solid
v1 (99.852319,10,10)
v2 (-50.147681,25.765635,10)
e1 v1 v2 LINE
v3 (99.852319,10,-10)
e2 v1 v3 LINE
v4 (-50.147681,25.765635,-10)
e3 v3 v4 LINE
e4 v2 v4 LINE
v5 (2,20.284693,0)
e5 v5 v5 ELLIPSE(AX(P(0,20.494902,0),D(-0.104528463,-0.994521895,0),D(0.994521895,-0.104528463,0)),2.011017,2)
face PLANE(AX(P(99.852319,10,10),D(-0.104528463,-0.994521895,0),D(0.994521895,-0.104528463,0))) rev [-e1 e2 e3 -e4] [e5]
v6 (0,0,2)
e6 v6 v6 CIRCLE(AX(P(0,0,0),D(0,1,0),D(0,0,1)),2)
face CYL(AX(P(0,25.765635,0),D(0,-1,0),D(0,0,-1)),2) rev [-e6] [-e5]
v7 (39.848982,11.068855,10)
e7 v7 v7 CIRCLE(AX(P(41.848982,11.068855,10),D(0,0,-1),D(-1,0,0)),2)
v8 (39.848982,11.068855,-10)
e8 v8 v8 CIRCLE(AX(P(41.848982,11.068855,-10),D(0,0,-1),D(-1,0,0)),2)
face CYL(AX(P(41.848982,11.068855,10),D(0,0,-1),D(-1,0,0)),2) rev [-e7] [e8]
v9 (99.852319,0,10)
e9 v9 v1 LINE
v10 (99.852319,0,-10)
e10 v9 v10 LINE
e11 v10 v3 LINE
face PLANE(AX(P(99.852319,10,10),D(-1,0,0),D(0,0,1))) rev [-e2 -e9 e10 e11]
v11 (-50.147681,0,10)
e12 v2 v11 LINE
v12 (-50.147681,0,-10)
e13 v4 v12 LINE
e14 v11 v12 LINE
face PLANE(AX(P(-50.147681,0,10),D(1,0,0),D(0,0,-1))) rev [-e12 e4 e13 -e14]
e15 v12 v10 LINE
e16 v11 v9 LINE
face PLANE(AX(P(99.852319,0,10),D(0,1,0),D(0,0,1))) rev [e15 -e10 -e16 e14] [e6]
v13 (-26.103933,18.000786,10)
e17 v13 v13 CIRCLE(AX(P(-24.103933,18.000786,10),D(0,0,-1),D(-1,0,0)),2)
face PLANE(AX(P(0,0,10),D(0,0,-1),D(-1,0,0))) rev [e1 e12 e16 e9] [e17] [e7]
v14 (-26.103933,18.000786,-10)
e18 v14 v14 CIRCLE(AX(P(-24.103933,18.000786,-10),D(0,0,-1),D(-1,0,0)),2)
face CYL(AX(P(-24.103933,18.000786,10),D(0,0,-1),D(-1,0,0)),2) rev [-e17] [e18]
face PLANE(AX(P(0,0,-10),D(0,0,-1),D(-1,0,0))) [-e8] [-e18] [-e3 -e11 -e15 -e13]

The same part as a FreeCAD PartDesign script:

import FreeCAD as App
import Part
import Sketcher
Q = App.Units.Quantity


def add_polygon(sketch, points):
    """Adds a closed chain of lines whose ends are joined by coincident constraints."""
    first, n = sketch.GeometryCount, len(points)
    for a, b in zip(points, points[1:] + points[:1]):
        sketch.addGeometry(Part.LineSegment(App.Vector(*a, 0), App.Vector(*b, 0)), False)
    for i in range(n):
        sketch.addConstraint(Sketcher.Constraint("Coincident", first + i, 2, first + (i + 1) % n, 1))

doc = App.newDocument("Part")
params = doc.addObject("Spreadsheet::Sheet", "Params")
for row, (alias, value) in enumerate([
    ("sketch1_width", "150 mm"),
    ("sketch1_height", "10 mm"),
    ("pad1_length", "20 mm"),
    ("sketch2_diameter", "4 mm"),
    ("sketch3_diameter", "4 mm"),
], start=1):
    params.set(f"A{row}", alias)
    params.set(f"B{row}", "=" + value)
    params.setAlias(f"B{row}", alias)

body = doc.addObject("PartDesign::Body", "Body")

# Sketch on XY plane
sketch1 = body.newObject("Sketcher::SketchObject", "Sketch")
sketch1.AttachmentSupport = (doc.getObject("XY_Plane"), [""])
sketch1.MapMode = "FlatFace"
add_polygon(sketch1, [(100, 10), (-50, 26), (-50, 0), (100, 0)])  # lines 0-3
sketch1.addConstraint([
    Sketcher.Constraint("Vertical", 1),
    Sketcher.Constraint("Horizontal", 2),
    Sketcher.Constraint("Vertical", 3),
    Sketcher.Constraint("PointOnObject", 1, 2, -1),
    Sketcher.Constraint("DistanceX", 2, 1, 2, 2, 150.0),
    Sketcher.Constraint("DistanceY", 3, 1, 3, 2, 10.0),
    Sketcher.Constraint("Angle", 0, Q("174 deg")),
    Sketcher.Constraint("DistanceX", 0, 2, -1, 1, 50.147681),
])
sketch1.setExpression("Constraints[8]", "Params.sketch1_width")
sketch1.setExpression("Constraints[9]", "Params.sketch1_height")
pad1 = body.newObject("PartDesign::Pad", "Pad")
pad1.Profile = sketch1
pad1.setExpression("Length", "Params.pad1_length")
pad1.Midplane = True

# Sketch on XZ plane
sketch2 = body.newObject("Sketcher::SketchObject", "Sketch001")
sketch2.AttachmentSupport = (doc.getObject("XZ_Plane"), [""])
sketch2.MapMode = "FlatFace"
sketch2.addGeometry(Part.Circle(App.Vector(0, 0, 0), App.Vector(0, 0, 1), 2), False)
sketch2.addConstraint([
    Sketcher.Constraint("Coincident", 0, 3, -1, 1),
    Sketcher.Constraint("Diameter", 0, 4.0),
])
sketch2.setExpression("Constraints[1]", "Params.sketch2_diameter")
pocket1 = body.newObject("PartDesign::Pocket", "Pocket")
pocket1.Profile = sketch2
pocket1.Type = "ThroughAll"
pocket1.Midplane = True

# Sketch on XY plane
sketch3 = body.newObject("Sketcher::SketchObject", "Sketch002")
sketch3.AttachmentSupport = (doc.getObject("XY_Plane"), [""])
sketch3.MapMode = "FlatFace"
sketch3.AttachmentOffset = App.Placement(App.Vector(0, 0, -10), App.Rotation())
sketch3.addGeometry([
    Part.Circle(App.Vector(-24.1, 18, 0), App.Vector(0, 0, 1), 2),
    Part.Circle(App.Vector(41.8, 11.1, 0), App.Vector(0, 0, 1), 2),
], False)
sketch3.addConstraint([
    Sketcher.Constraint("Equal", 0, 1),
    Sketcher.Constraint("Diameter", 0, 4.0),
    Sketcher.Constraint("DistanceY", 1, 3, 0, 3, 6.931931),
    Sketcher.Constraint("DistanceX", 0, 3, -1, 1, 24.103933),
    Sketcher.Constraint("DistanceY", -1, 1, 0, 3, 18.000786),
    Sketcher.Constraint("DistanceX", -1, 1, 1, 3, 41.848982),
])
sketch3.setExpression("Constraints[1]", "Params.sketch3_diameter")
pocket2 = body.newObject("PartDesign::Pocket", "Pocket001")
pocket2.Profile = sketch3
pocket2.Type = "ThroughAll"
pocket2.Midplane = True

doc.recompute()
